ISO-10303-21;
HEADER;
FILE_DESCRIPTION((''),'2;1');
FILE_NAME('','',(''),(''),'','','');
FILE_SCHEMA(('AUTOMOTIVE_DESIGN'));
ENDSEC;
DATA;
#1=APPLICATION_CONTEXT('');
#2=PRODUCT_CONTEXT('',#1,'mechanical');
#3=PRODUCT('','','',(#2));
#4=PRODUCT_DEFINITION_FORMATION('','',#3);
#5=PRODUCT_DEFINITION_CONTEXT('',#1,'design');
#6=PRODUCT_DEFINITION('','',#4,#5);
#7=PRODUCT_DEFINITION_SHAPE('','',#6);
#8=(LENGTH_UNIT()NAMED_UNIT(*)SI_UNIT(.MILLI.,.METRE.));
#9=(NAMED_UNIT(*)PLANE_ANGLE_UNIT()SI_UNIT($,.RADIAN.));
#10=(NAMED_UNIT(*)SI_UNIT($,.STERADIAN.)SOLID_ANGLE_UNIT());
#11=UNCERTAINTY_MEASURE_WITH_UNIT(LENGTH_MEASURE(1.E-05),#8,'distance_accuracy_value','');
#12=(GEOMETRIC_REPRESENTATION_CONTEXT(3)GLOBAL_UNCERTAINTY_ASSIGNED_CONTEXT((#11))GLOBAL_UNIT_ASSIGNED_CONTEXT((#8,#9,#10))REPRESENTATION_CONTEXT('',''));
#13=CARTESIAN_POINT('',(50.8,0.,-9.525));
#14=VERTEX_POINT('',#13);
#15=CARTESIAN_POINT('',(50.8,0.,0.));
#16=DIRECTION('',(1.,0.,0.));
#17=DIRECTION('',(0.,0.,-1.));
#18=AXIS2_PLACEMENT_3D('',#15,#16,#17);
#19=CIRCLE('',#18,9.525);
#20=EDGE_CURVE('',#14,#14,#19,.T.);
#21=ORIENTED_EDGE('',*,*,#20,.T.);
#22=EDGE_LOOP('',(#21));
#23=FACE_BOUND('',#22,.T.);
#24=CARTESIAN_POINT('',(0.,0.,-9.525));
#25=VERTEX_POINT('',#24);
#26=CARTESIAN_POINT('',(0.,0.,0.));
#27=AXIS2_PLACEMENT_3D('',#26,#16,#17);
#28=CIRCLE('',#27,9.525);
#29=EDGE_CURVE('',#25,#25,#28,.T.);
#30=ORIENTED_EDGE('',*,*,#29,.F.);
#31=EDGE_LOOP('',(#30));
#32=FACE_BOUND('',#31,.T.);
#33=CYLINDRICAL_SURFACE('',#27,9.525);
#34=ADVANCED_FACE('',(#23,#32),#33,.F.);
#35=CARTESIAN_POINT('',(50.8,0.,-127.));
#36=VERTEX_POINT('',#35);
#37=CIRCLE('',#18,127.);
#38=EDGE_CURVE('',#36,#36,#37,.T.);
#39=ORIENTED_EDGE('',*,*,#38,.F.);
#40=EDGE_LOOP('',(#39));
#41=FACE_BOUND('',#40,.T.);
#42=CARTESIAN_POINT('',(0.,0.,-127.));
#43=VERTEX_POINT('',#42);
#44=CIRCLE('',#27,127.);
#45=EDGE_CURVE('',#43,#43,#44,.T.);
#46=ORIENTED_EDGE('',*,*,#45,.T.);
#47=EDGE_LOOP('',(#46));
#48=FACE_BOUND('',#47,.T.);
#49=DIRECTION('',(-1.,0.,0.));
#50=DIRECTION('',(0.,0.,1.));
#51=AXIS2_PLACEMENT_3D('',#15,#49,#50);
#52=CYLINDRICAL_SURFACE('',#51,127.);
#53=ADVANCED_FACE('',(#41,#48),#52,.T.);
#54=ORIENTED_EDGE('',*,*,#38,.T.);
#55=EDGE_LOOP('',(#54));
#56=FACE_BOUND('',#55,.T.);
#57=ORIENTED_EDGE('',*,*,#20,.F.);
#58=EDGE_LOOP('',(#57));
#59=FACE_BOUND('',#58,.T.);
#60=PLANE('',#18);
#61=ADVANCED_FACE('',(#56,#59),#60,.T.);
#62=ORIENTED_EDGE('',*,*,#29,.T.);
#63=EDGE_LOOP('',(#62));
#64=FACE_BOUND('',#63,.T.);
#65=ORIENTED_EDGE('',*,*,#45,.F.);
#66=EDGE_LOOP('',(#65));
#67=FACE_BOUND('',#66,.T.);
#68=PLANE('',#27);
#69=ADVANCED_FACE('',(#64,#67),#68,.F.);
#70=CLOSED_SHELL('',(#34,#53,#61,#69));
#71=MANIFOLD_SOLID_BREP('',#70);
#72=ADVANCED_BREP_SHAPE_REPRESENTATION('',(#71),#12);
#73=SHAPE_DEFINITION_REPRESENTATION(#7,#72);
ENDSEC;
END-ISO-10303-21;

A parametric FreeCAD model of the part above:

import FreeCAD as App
import Part
import Sketcher
Q = App.Units.Quantity

doc = App.newDocument("Part")
body = doc.addObject("PartDesign::Body", "Body")

# Sketch on YZ plane
sketch1 = body.newObject("Sketcher::SketchObject", "Sketch")
sketch1.AttachmentSupport = (doc.getObject("YZ_Plane"), [""])
sketch1.MapMode = "FlatFace"
sketch1.addGeometry(Part.Circle(App.Vector(0, 0, 0), App.Vector(0, 0, 1), 127), False)
sketch1.addConstraint([
    Sketcher.Constraint("Coincident", 0, 3, -1, 1),
    Sketcher.Constraint("Diameter", 0, Q("10 in")),
])
pad1 = body.newObject("PartDesign::Pad", "Pad")
pad1.Profile = sketch1
pad1.Length = Q("2 in")

# Sketch on YZ plane
sketch2 = body.newObject("Sketcher::SketchObject", "Sketch001")
sketch2.AttachmentSupport = (doc.getObject("YZ_Plane"), [""])
sketch2.MapMode = "FlatFace"
sketch2.AttachmentOffset = App.Placement(App.Vector(0, 0, 2 * 25.4), App.Rotation())
sketch2.addGeometry(Part.Circle(App.Vector(0, 0, 0), App.Vector(0, 0, 1), 9.525), False)
sketch2.addConstraint([
    Sketcher.Constraint("Coincident", 0, 3, -1, 1),
    Sketcher.Constraint("Diameter", 0, Q("0.75 in")),
])
pocket1 = body.newObject("PartDesign::Pocket", "Pocket")
pocket1.Profile = sketch2
pocket1.Length = Q("2 in")

doc.recompute()
